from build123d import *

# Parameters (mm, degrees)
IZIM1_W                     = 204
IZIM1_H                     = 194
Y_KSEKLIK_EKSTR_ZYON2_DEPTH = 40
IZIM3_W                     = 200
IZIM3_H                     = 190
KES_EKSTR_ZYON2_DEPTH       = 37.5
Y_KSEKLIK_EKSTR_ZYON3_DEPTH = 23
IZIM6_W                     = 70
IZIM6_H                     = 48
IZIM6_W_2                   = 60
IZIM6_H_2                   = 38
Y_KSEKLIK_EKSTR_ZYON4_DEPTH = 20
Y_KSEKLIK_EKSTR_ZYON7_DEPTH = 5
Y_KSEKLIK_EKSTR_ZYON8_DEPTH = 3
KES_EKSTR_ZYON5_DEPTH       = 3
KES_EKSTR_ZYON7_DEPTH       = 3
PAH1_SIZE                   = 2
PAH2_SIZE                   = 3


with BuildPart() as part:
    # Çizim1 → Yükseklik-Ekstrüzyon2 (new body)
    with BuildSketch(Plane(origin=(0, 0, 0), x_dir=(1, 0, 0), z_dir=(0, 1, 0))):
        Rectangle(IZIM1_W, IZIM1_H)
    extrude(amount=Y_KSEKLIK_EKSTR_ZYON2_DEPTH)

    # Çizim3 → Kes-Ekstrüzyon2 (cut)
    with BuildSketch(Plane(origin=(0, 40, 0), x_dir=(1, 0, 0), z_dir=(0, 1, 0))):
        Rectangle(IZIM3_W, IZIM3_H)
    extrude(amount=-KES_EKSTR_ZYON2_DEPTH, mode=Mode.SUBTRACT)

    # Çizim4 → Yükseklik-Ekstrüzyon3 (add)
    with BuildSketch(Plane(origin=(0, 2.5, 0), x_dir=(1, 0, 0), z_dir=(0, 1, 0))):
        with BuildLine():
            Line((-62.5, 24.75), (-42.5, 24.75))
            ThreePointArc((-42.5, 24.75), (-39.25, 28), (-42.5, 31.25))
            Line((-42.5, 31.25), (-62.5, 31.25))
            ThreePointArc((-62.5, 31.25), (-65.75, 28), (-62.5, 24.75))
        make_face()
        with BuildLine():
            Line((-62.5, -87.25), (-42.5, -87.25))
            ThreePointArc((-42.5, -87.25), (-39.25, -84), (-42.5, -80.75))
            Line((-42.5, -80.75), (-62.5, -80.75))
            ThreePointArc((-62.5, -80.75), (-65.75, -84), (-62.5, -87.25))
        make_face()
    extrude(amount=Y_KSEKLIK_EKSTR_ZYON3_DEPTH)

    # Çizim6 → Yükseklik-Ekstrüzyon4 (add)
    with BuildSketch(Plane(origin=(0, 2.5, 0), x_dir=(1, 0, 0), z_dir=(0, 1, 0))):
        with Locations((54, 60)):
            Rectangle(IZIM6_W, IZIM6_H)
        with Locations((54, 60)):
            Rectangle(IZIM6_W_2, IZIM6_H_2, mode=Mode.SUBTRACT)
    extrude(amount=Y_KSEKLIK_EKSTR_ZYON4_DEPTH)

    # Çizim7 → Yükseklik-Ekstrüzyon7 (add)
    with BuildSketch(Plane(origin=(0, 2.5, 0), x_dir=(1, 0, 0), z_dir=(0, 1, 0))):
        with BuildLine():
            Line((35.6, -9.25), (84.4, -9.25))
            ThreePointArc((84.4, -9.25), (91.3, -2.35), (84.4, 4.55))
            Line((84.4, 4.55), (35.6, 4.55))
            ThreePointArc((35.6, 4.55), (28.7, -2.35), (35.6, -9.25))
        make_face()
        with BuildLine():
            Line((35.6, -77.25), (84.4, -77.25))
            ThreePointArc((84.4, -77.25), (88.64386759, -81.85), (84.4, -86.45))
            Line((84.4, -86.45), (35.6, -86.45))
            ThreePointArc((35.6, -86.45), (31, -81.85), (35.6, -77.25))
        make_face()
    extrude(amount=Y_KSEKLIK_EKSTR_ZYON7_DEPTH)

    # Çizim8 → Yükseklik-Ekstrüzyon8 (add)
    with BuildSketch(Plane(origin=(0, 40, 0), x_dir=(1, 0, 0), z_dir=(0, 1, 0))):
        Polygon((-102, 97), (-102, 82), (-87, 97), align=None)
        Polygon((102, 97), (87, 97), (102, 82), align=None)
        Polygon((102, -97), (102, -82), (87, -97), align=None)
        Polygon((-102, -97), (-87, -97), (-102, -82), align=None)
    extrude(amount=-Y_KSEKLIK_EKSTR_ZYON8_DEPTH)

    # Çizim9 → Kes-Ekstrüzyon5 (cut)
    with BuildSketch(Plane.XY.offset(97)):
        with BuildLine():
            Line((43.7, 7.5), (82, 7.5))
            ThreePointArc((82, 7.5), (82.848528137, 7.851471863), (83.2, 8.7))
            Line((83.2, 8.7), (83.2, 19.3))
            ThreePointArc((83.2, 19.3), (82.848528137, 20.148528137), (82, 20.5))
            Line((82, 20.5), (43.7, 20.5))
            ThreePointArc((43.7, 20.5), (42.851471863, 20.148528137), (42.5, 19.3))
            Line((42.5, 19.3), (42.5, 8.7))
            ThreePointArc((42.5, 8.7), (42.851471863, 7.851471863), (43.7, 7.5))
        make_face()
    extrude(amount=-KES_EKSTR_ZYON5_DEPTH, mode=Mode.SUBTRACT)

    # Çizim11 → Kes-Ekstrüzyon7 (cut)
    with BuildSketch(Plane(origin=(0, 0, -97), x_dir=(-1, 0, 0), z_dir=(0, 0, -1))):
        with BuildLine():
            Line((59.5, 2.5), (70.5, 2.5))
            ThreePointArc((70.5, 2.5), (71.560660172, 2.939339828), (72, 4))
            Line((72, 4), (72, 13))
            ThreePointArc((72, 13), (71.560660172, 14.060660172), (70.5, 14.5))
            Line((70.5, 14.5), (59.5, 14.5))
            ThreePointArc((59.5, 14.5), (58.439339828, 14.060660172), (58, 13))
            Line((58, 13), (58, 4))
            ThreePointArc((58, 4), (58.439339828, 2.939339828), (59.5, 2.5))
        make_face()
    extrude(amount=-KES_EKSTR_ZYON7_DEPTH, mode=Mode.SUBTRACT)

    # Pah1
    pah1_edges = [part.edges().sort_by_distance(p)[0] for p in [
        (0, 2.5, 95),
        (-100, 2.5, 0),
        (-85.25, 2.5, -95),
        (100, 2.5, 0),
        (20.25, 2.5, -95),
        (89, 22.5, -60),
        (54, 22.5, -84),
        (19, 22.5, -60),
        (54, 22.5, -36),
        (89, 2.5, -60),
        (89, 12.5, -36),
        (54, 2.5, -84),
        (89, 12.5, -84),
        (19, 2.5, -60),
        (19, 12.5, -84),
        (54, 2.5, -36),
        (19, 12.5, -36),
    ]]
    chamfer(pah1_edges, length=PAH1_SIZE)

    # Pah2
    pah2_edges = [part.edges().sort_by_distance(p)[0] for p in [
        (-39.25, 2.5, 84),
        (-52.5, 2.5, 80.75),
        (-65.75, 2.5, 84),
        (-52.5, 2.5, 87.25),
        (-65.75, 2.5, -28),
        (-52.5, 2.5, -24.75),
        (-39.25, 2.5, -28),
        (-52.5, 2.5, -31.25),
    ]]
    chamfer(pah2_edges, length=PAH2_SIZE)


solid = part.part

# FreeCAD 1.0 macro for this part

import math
import FreeCAD as App
import Part
import Sketcher
from FreeCAD import Vector
Q = App.Units.Quantity


def edges_at(feature, points):
    """Names of the edges that pass closest to the given points."""
    edges = feature.Shape.Edges
    near = lambda p: min(range(len(edges)), key=lambda i: edges[i].distToShape(Part.Vertex(*p))[0])
    return sorted({f"Edge{near(p) + 1}" for p in points})


def add_polygon(sketch, points):
    """Adds a closed chain of lines whose ends are joined by coincident constraints."""
    first, n = sketch.GeometryCount, len(points)
    for a, b in zip(points, points[1:] + points[:1]):
        sketch.addGeometry(Part.LineSegment(App.Vector(*a, 0), App.Vector(*b, 0)), False)
    for i in range(n):
        sketch.addConstraint(Sketcher.Constraint("Coincident", first + i, 2, first + (i + 1) % n, 1))

doc = App.newDocument("Part")
params = doc.addObject("Spreadsheet::Sheet", "Params")
for row, (alias, value) in enumerate([
    ("sketch1_width", "204 mm"),
    ("sketch1_height", "194 mm"),
    ("pad1_length", "40 mm"),
    ("sketch2_width", "200 mm"),
    ("sketch2_height", "190 mm"),
    ("pocket1_length", "37.5 mm"),
    ("sketch3_width", "20 mm"),
    ("sketch3_radius", "3.25 mm"),
    ("pad2_length", "23 mm"),
    ("sketch4_width", "70 mm"),
    ("sketch4_width2", "60 mm"),
    ("sketch4_height", "48 mm"),
    ("sketch4_height2", "38 mm"),
    ("pad3_length", "20 mm"),
    ("sketch5_radius", "6.9 mm"),
    ("sketch5_radius2", "4.6 mm"),
    ("sketch5_width", "48.8 mm"),
    ("pad4_length", "5 mm"),
    ("sketch6_width", "15 mm"),
    ("pad5_length", "3 mm"),
    ("sketch7_radius", "1.2 mm"),
    ("sketch7_width", "38.3 mm"),
    ("sketch7_height", "10.6 mm"),
    ("pocket2_length", "3 mm"),
    ("sketch8_radius", "1.5 mm"),
    ("sketch8_width", "11 mm"),
    ("sketch8_height", "9 mm"),
    ("pocket3_length", "3 mm"),
    ("chamfer_size", "2 mm"),
    ("chamfer2_size", "3 mm"),
], start=1):
    params.set(f"A{row}", alias)
    params.set(f"B{row}", "=" + value)
    params.setAlias(f"B{row}", alias)

body = doc.addObject("PartDesign::Body", "Body")

sketch1 = body.newObject("Sketcher::SketchObject", "Sketch")
sketch1.AttachmentSupport = (doc.getObject("XZ_Plane"), [""])
sketch1.MapMode = "FlatFace"
add_polygon(sketch1, [(-102, -97), (-102, 97), (102, 97), (102, -97)])
sketch1.addConstraint(Sketcher.Constraint("Vertical", 0))
sketch1.addConstraint(Sketcher.Constraint("Horizontal", 1))
sketch1.addConstraint(Sketcher.Constraint("Vertical", 2))
sketch1.addConstraint(Sketcher.Constraint("Horizontal", 3))
sketch1.addConstraint(Sketcher.Constraint("Symmetric", 0, 2, 2, 2, -1, 1))
sketch1.addConstraint(Sketcher.Constraint("DistanceX", 1, 1, 1, 2, Q("204 mm")))
sketch1.addConstraint(Sketcher.Constraint("DistanceY", 0, 1, 0, 2, Q("194 mm")))
sketch1.setExpression("Constraints[9]", "Params.sketch1_width")
sketch1.setExpression("Constraints[10]", "Params.sketch1_height")
pad1 = body.newObject("PartDesign::Pad", "Pad")
pad1.Profile = sketch1
pad1.setExpression("Length", "Params.pad1_length")
pad1.Reversed = True

sketch2 = body.newObject("Sketcher::SketchObject", "Sketch001")
sketch2.AttachmentSupport = (doc.getObject("XZ_Plane"), [""])
sketch2.MapMode = "FlatFace"
sketch2.AttachmentOffset = App.Placement(Vector(0, 0, -40), App.Rotation())
add_polygon(sketch2, [(-100, -95), (-100, 95), (100, 95), (100, -95)])
sketch2.addConstraint(Sketcher.Constraint("Vertical", 0))
sketch2.addConstraint(Sketcher.Constraint("Horizontal", 1))
sketch2.addConstraint(Sketcher.Constraint("Vertical", 2))
sketch2.addConstraint(Sketcher.Constraint("Horizontal", 3))
sketch2.addConstraint(Sketcher.Constraint("Symmetric", 0, 2, 2, 2, -1, 1))
sketch2.addConstraint(Sketcher.Constraint("DistanceX", 1, 1, 1, 2, Q("200 mm")))
sketch2.addConstraint(Sketcher.Constraint("DistanceY", 0, 1, 0, 2, Q("190 mm")))
sketch2.setExpression("Constraints[9]", "Params.sketch2_width")
sketch2.setExpression("Constraints[10]", "Params.sketch2_height")
pocket1 = body.newObject("PartDesign::Pocket", "Pocket")
pocket1.Profile = sketch2
pocket1.setExpression("Length", "Params.pocket1_length")
pocket1.Reversed = True

sketch3 = body.newObject("Sketcher::SketchObject", "Sketch002")
sketch3.AttachmentSupport = (doc.getObject("XZ_Plane"), [""])
sketch3.MapMode = "FlatFace"
sketch3.AttachmentOffset = App.Placement(Vector(0, 0, -2.5), App.Rotation())
sketch3.addGeometry(Part.LineSegment(Vector(-62.5, -24.8, 0), Vector(-42.5, -24.8, 0)), False)
sketch3.addGeometry(Part.ArcOfCircle(Part.Circle(Vector(-42.5, -28, 0), Vector(0, 0, 1), 3.2), math.radians(-90), math.radians(90)), False)
sketch3.addGeometry(Part.LineSegment(Vector(-42.5, -31.2, 0), Vector(-62.5, -31.2, 0)), False)
sketch3.addGeometry(Part.ArcOfCircle(Part.Circle(Vector(-62.5, -28, 0), Vector(0, 0, 1), 3.2), math.radians(90), math.radians(270)), False)
sketch3.addGeometry(Part.LineSegment(Vector(-62.5, 87.2, 0), Vector(-42.5, 87.2, 0)), False)
sketch3.addGeometry(Part.ArcOfCircle(Part.Circle(Vector(-42.5, 84, 0), Vector(0, 0, 1), 3.2), math.radians(-90), math.radians(90)), False)
sketch3.addGeometry(Part.LineSegment(Vector(-42.5, 80.8, 0), Vector(-62.5, 80.8, 0)), False)
sketch3.addGeometry(Part.ArcOfCircle(Part.Circle(Vector(-62.5, 84, 0), Vector(0, 0, 1), 3.2), math.radians(90), math.radians(270)), False)
sketch3.addConstraint(Sketcher.Constraint("Tangent", 0, 2, 1, 2))
sketch3.addConstraint(Sketcher.Constraint("Tangent", 1, 1, 2, 1))
sketch3.addConstraint(Sketcher.Constraint("Tangent", 2, 2, 3, 2))
sketch3.addConstraint(Sketcher.Constraint("Tangent", 3, 1, 0, 1))
sketch3.addConstraint(Sketcher.Constraint("Tangent", 4, 2, 5, 2))
sketch3.addConstraint(Sketcher.Constraint("Tangent", 5, 1, 6, 1))
sketch3.addConstraint(Sketcher.Constraint("Tangent", 6, 2, 7, 2))
sketch3.addConstraint(Sketcher.Constraint("Tangent", 7, 1, 4, 1))
sketch3.addConstraint(Sketcher.Constraint("Horizontal", 0))
sketch3.addConstraint(Sketcher.Constraint("Horizontal", 2))
sketch3.addConstraint(Sketcher.Constraint("Horizontal", 4))
sketch3.addConstraint(Sketcher.Constraint("Horizontal", 6))
sketch3.addConstraint(Sketcher.Constraint("Equal", 3, 5))
sketch3.addConstraint(Sketcher.Constraint("Vertical", 1, 3, 5, 3))
sketch3.addConstraint(Sketcher.Constraint("Vertical", 3, 3, 7, 3))
sketch3.addConstraint(Sketcher.Constraint("DistanceX", 0, 1, 0, 2, Q("20 mm")))
sketch3.addConstraint(Sketcher.Constraint("Radius", 1, Q("3.25 mm")))
sketch3.addConstraint(Sketcher.Constraint("DistanceY", 1, 3, -1, 1, Q("28 mm")))
sketch3.addConstraint(Sketcher.Constraint("DistanceY", -1, 1, 5, 3, Q("84 mm")))
sketch3.addConstraint(Sketcher.Constraint("DistanceX", 1, 3, -1, 1, Q("42.5 mm")))
sketch3.setExpression("Constraints[15]", "Params.sketch3_width")
sketch3.setExpression("Constraints[16]", "Params.sketch3_radius")
pad2 = body.newObject("PartDesign::Pad", "Pad001")
pad2.Profile = sketch3
pad2.setExpression("Length", "Params.pad2_length")
pad2.Reversed = True

sketch4 = body.newObject("Sketcher::SketchObject", "Sketch003")
sketch4.AttachmentSupport = (doc.getObject("XZ_Plane"), [""])
sketch4.MapMode = "FlatFace"
sketch4.AttachmentOffset = App.Placement(Vector(0, 0, -2.5), App.Rotation())
add_polygon(sketch4, [(19, -84), (19, -36), (89, -36), (89, -84)])
add_polygon(sketch4, [(84, -41), (24, -41), (24, -79), (84, -79)])
sketch4.addConstraint(Sketcher.Constraint("Vertical", 0))
sketch4.addConstraint(Sketcher.Constraint("Horizontal", 1))
sketch4.addConstraint(Sketcher.Constraint("Vertical", 2))
sketch4.addConstraint(Sketcher.Constraint("Horizontal", 3))
sketch4.addConstraint(Sketcher.Constraint("Horizontal", 4))
sketch4.addConstraint(Sketcher.Constraint("Vertical", 5))
sketch4.addConstraint(Sketcher.Constraint("Horizontal", 6))
sketch4.addConstraint(Sketcher.Constraint("Vertical", 7))
sketch4.addConstraint(Sketcher.Constraint("DistanceX", 1, 1, 1, 2, Q("70 mm")))
sketch4.addConstraint(Sketcher.Constraint("DistanceX", 4, 2, 4, 1, Q("60 mm")))
sketch4.addConstraint(Sketcher.Constraint("DistanceY", 0, 1, 0, 2, Q("48 mm")))
sketch4.addConstraint(Sketcher.Constraint("DistanceY", 5, 2, 5, 1, Q("38 mm")))
sketch4.addConstraint(Sketcher.Constraint("DistanceX", -1, 1, 0, 2, Q("19 mm")))
sketch4.addConstraint(Sketcher.Constraint("DistanceY", 0, 2, -1, 1, Q("36 mm")))
sketch4.addConstraint(Sketcher.Constraint("DistanceX", -1, 1, 4, 2, Q("24 mm")))
sketch4.addConstraint(Sketcher.Constraint("DistanceY", 4, 2, -1, 1, Q("41 mm")))
sketch4.setExpression("Constraints[16]", "Params.sketch4_width")
sketch4.setExpression("Constraints[17]", "Params.sketch4_width2")
sketch4.setExpression("Constraints[18]", "Params.sketch4_height")
sketch4.setExpression("Constraints[19]", "Params.sketch4_height2")
pad3 = body.newObject("PartDesign::Pad", "Pad002")
pad3.Profile = sketch4
pad3.setExpression("Length", "Params.pad3_length")
pad3.Reversed = True

sketch5 = body.newObject("Sketcher::SketchObject", "Sketch004")
sketch5.AttachmentSupport = (doc.getObject("XZ_Plane"), [""])
sketch5.MapMode = "FlatFace"
sketch5.AttachmentOffset = App.Placement(Vector(0, 0, -2.5), App.Rotation())
sketch5.addGeometry(Part.LineSegment(Vector(35.6, 9.2, 0), Vector(84.4, 9.2, 0)), False)
sketch5.addGeometry(Part.ArcOfCircle(Part.Circle(Vector(84.4, 2.4, 0), Vector(0, 0, 1), 6.9), math.radians(-90), math.radians(90)), False)
sketch5.addGeometry(Part.LineSegment(Vector(84.4, -4.5, 0), Vector(35.6, -4.5, 0)), False)
sketch5.addGeometry(Part.ArcOfCircle(Part.Circle(Vector(35.6, 2.4, 0), Vector(0, 0, 1), 6.9), math.radians(90), math.radians(270)), False)
sketch5.addGeometry(Part.LineSegment(Vector(84.4, 77.2, 0), Vector(35.6, 77.2, 0)), False)
sketch5.addGeometry(Part.ArcOfCircle(Part.Circle(Vector(35.6, 81.8, 0), Vector(0, 0, 1), 4.6), math.radians(90), math.radians(270)), False)
sketch5.addGeometry(Part.LineSegment(Vector(35.6, 86.5, 0), Vector(84.4, 86.5, 0)), False)
sketch5.addGeometry(Part.ArcOfCircle(Part.Circle(Vector(84, 81.8, 0), Vector(0, 0, 1), 4.6), math.radians(-85), math.radians(85)), False)
sketch5.addConstraint(Sketcher.Constraint("Tangent", 0, 2, 1, 2))
sketch5.addConstraint(Sketcher.Constraint("Tangent", 1, 1, 2, 1))
sketch5.addConstraint(Sketcher.Constraint("Tangent", 2, 2, 3, 2))
sketch5.addConstraint(Sketcher.Constraint("Tangent", 3, 1, 0, 1))
sketch5.addConstraint(Sketcher.Constraint("Tangent", 4, 2, 5, 2))
sketch5.addConstraint(Sketcher.Constraint("Tangent", 5, 1, 6, 1))
sketch5.addConstraint(Sketcher.Constraint("Coincident", 6, 2, 7, 2))
sketch5.addConstraint(Sketcher.Constraint("Coincident", 7, 1, 4, 1))
sketch5.addConstraint(Sketcher.Constraint("Horizontal", 0))
sketch5.addConstraint(Sketcher.Constraint("Horizontal", 2))
sketch5.addConstraint(Sketcher.Constraint("Horizontal", 4))
sketch5.addConstraint(Sketcher.Constraint("Horizontal", 6))
sketch5.addConstraint(Sketcher.Constraint("Horizontal", 5, 3, 7, 3))
sketch5.addConstraint(Sketcher.Constraint("Vertical", 3, 3, 5, 3))
sketch5.addConstraint(Sketcher.Constraint("Vertical", 1, 1, 6, 2))
sketch5.addConstraint(Sketcher.Constraint("Radius", 1, Q("6.9 mm")))
sketch5.addConstraint(Sketcher.Constraint("Radius", 5, Q("4.6 mm")))
sketch5.addConstraint(Sketcher.Constraint("DistanceX", 0, 1, 0, 2, Q("48.8 mm")))
sketch5.addConstraint(Sketcher.Constraint("DistanceY", 3, 1, 4, 2, Q("68 mm")))
sketch5.addConstraint(Sketcher.Constraint("DistanceX", -1, 1, 1, 3, Q("84.4 mm")))
sketch5.addConstraint(Sketcher.Constraint("DistanceY", -1, 1, 1, 3, Q("2.35 mm")))
sketch5.addConstraint(Sketcher.Constraint("Radius", 7, Q("4.614943 mm")))
sketch5.setExpression("Constraints[15]", "Params.sketch5_radius")
sketch5.setExpression("Constraints[16]", "Params.sketch5_radius2")
sketch5.setExpression("Constraints[17]", "Params.sketch5_width")
pad4 = body.newObject("PartDesign::Pad", "Pad003")
pad4.Profile = sketch5
pad4.setExpression("Length", "Params.pad4_length")
pad4.Reversed = True

sketch6 = body.newObject("Sketcher::SketchObject", "Sketch005")
sketch6.AttachmentSupport = (doc.getObject("XZ_Plane"), [""])
sketch6.MapMode = "FlatFace"
sketch6.AttachmentOffset = App.Placement(Vector(0, 0, -40), App.Rotation())
add_polygon(sketch6, [(-102, -97), (-102, -82), (-87, -97)])
add_polygon(sketch6, [(102, -97), (87, -97), (102, -82)])
add_polygon(sketch6, [(102, 97), (102, 82), (87, 97)])
add_polygon(sketch6, [(-102, 97), (-87, 97), (-102, 82)])
sketch6.addConstraint(Sketcher.Constraint("Vertical", 0))
sketch6.addConstraint(Sketcher.Constraint("Horizontal", 2))
sketch6.addConstraint(Sketcher.Constraint("Horizontal", 3))
sketch6.addConstraint(Sketcher.Constraint("Vertical", 5))
sketch6.addConstraint(Sketcher.Constraint("Vertical", 6))
sketch6.addConstraint(Sketcher.Constraint("Horizontal", 8))
sketch6.addConstraint(Sketcher.Constraint("Horizontal", 9))
sketch6.addConstraint(Sketcher.Constraint("Vertical", 11))
sketch6.addConstraint(Sketcher.Constraint("Symmetric", 0, 2, 6, 2, -1, 1))
sketch6.addConstraint(Sketcher.Constraint("Symmetric", 1, 2, 7, 2, -1, 1))
sketch6.addConstraint(Sketcher.Constraint("Symmetric", 3, 2, 9, 2, -1, 1))
sketch6.addConstraint(Sketcher.Constraint("Symmetric", 4, 2, 10, 2, -1, 1))
sketch6.addConstraint(Sketcher.Constraint("Symmetric", 1, 2, 3, 2, -2))
sketch6.addConstraint(Sketcher.Constraint("Symmetric", 0, 2, 4, 2, -2))
sketch6.addConstraint(Sketcher.Constraint("Perpendicular", 1, 4))
sketch6.addConstraint(Sketcher.Constraint("DistanceX", 2, 2, 2, 1, Q("15 mm")))
sketch6.addConstraint(Sketcher.Constraint("DistanceX", 0, 2, -1, 1, Q("102 mm")))
sketch6.addConstraint(Sketcher.Constraint("DistanceY", 0, 2, -1, 1, Q("82 mm")))
sketch6.setExpression("Constraints[27]", "Params.sketch6_width")
pad5 = body.newObject("PartDesign::Pad", "Pad004")
pad5.Profile = sketch6
pad5.setExpression("Length", "Params.pad5_length")

sketch7 = body.newObject("Sketcher::SketchObject", "Sketch006")
sketch7.AttachmentSupport = (doc.getObject("XY_Plane"), [""])
sketch7.MapMode = "FlatFace"
sketch7.AttachmentOffset = App.Placement(Vector(0, 0, 97), App.Rotation())
sketch7.addGeometry(Part.LineSegment(Vector(43.7, 7.5, 0), Vector(82, 7.5, 0)), False)
sketch7.addGeometry(Part.ArcOfCircle(Part.Circle(Vector(82, 8.7, 0), Vector(0, 0, 1), 1.2), math.radians(-90), math.radians(0)), False)
sketch7.addGeometry(Part.LineSegment(Vector(83.2, 8.7, 0), Vector(83.2, 19.3, 0)), False)
sketch7.addGeometry(Part.ArcOfCircle(Part.Circle(Vector(82, 19.3, 0), Vector(0, 0, 1), 1.2), math.radians(0), math.radians(90)), False)
sketch7.addGeometry(Part.LineSegment(Vector(82, 20.5, 0), Vector(43.7, 20.5, 0)), False)
sketch7.addGeometry(Part.ArcOfCircle(Part.Circle(Vector(43.7, 19.3, 0), Vector(0, 0, 1), 1.2), math.radians(90), math.radians(180)), False)
sketch7.addGeometry(Part.LineSegment(Vector(42.5, 19.3, 0), Vector(42.5, 8.7, 0)), False)
sketch7.addGeometry(Part.ArcOfCircle(Part.Circle(Vector(43.7, 8.7, 0), Vector(0, 0, 1), 1.2), math.radians(-180), math.radians(-90)), False)
sketch7.addConstraint(Sketcher.Constraint("Tangent", 0, 2, 1, 1))
sketch7.addConstraint(Sketcher.Constraint("Tangent", 1, 2, 2, 1))
sketch7.addConstraint(Sketcher.Constraint("Tangent", 2, 2, 3, 1))
sketch7.addConstraint(Sketcher.Constraint("Tangent", 3, 2, 4, 1))
sketch7.addConstraint(Sketcher.Constraint("Tangent", 4, 2, 5, 1))
sketch7.addConstraint(Sketcher.Constraint("Tangent", 5, 2, 6, 1))
sketch7.addConstraint(Sketcher.Constraint("Tangent", 6, 2, 7, 1))
sketch7.addConstraint(Sketcher.Constraint("Tangent", 7, 2, 0, 1))
sketch7.addConstraint(Sketcher.Constraint("Horizontal", 0))
sketch7.addConstraint(Sketcher.Constraint("Vertical", 2))
sketch7.addConstraint(Sketcher.Constraint("Horizontal", 4))
sketch7.addConstraint(Sketcher.Constraint("Vertical", 6))
sketch7.addConstraint(Sketcher.Constraint("Equal", 1, 3))
sketch7.addConstraint(Sketcher.Constraint("Equal", 3, 5))
sketch7.addConstraint(Sketcher.Constraint("Equal", 5, 7))
sketch7.addConstraint(Sketcher.Constraint("Radius", 1, Q("1.2 mm")))
sketch7.addConstraint(Sketcher.Constraint("DistanceX", 0, 1, 0, 2, Q("38.3 mm")))
sketch7.addConstraint(Sketcher.Constraint("DistanceY", 2, 1, 2, 2, Q("10.6 mm")))
sketch7.addConstraint(Sketcher.Constraint("DistanceX", -1, 1, 1, 3, Q("82 mm")))
sketch7.addConstraint(Sketcher.Constraint("DistanceY", -1, 1, 1, 3, Q("8.7 mm")))
sketch7.setExpression("Constraints[15]", "Params.sketch7_radius")
sketch7.setExpression("Constraints[16]", "Params.sketch7_width")
sketch7.setExpression("Constraints[17]", "Params.sketch7_height")
pocket2 = body.newObject("PartDesign::Pocket", "Pocket001")
pocket2.Profile = sketch7
pocket2.setExpression("Length", "Params.pocket2_length")

sketch8 = body.newObject("Sketcher::SketchObject", "Sketch007")
sketch8.AttachmentSupport = (doc.getObject("XY_Plane"), [""])
sketch8.MapMode = "FlatFace"
sketch8.AttachmentOffset = App.Placement(Vector(0, 0, -97), App.Rotation())
sketch8.addGeometry(Part.LineSegment(Vector(-59.5, 2.5, 0), Vector(-70.5, 2.5, 0)), False)
sketch8.addGeometry(Part.ArcOfCircle(Part.Circle(Vector(-70.5, 4, 0), Vector(0, 0, 1), 1.5), math.radians(180), math.radians(270)), False)
sketch8.addGeometry(Part.LineSegment(Vector(-72, 4, 0), Vector(-72, 13, 0)), False)
sketch8.addGeometry(Part.ArcOfCircle(Part.Circle(Vector(-70.5, 13, 0), Vector(0, 0, 1), 1.5), math.radians(90), math.radians(180)), False)
sketch8.addGeometry(Part.LineSegment(Vector(-70.5, 14.5, 0), Vector(-59.5, 14.5, 0)), False)
sketch8.addGeometry(Part.ArcOfCircle(Part.Circle(Vector(-59.5, 13, 0), Vector(0, 0, 1), 1.5), math.radians(0), math.radians(90)), False)
sketch8.addGeometry(Part.LineSegment(Vector(-58, 13, 0), Vector(-58, 4, 0)), False)
sketch8.addGeometry(Part.ArcOfCircle(Part.Circle(Vector(-59.5, 4, 0), Vector(0, 0, 1), 1.5), math.radians(-90), math.radians(0)), False)
sketch8.addConstraint(Sketcher.Constraint("Tangent", 0, 2, 1, 2))
sketch8.addConstraint(Sketcher.Constraint("Tangent", 1, 1, 2, 1))
sketch8.addConstraint(Sketcher.Constraint("Tangent", 2, 2, 3, 2))
sketch8.addConstraint(Sketcher.Constraint("Tangent", 3, 1, 4, 1))
sketch8.addConstraint(Sketcher.Constraint("Tangent", 4, 2, 5, 2))
sketch8.addConstraint(Sketcher.Constraint("Tangent", 5, 1, 6, 1))
sketch8.addConstraint(Sketcher.Constraint("Tangent", 6, 2, 7, 2))
sketch8.addConstraint(Sketcher.Constraint("Tangent", 7, 1, 0, 1))
sketch8.addConstraint(Sketcher.Constraint("Horizontal", 0))
sketch8.addConstraint(Sketcher.Constraint("Vertical", 2))
sketch8.addConstraint(Sketcher.Constraint("Horizontal", 4))
sketch8.addConstraint(Sketcher.Constraint("Vertical", 6))
sketch8.addConstraint(Sketcher.Constraint("Equal", 1, 3))
sketch8.addConstraint(Sketcher.Constraint("Equal", 3, 5))
sketch8.addConstraint(Sketcher.Constraint("Equal", 5, 7))
sketch8.addConstraint(Sketcher.Constraint("Radius", 1, Q("1.5 mm")))
sketch8.addConstraint(Sketcher.Constraint("DistanceX", 0, 2, 0, 1, Q("11 mm")))
sketch8.addConstraint(Sketcher.Constraint("DistanceY", 2, 1, 2, 2, Q("9 mm")))
sketch8.addConstraint(Sketcher.Constraint("DistanceY", -1, 1, 1, 3, Q("4 mm")))
sketch8.addConstraint(Sketcher.Constraint("DistanceX", 1, 1, -1, 1, Q("72 mm")))
sketch8.setExpression("Constraints[15]", "Params.sketch8_radius")
sketch8.setExpression("Constraints[16]", "Params.sketch8_width")
sketch8.setExpression("Constraints[17]", "Params.sketch8_height")
pocket3 = body.newObject("PartDesign::Pocket", "Pocket002")
pocket3.Profile = sketch8
pocket3.setExpression("Length", "Params.pocket3_length")
pocket3.Reversed = True
doc.recompute()

chamfer = body.newObject("PartDesign::Chamfer", "Chamfer")
chamfer.Base = (pocket3, edges_at(pocket3, [
    (0, 2.5, 95),
    (-100, 2.5, 0),
    (-85.25, 2.5, -95),
    (100, 2.5, 0),
    (20.25, 2.5, -95),
    (89, 22.5, -60),
    (54, 22.5, -84),
    (19, 22.5, -60),
    (54, 22.5, -36),
    (89, 2.5, -60),
    (89, 12.5, -36),
    (54, 2.5, -84),
    (89, 12.5, -84),
    (19, 2.5, -60),
    (19, 12.5, -84),
    (54, 2.5, -36),
    (19, 12.5, -36),
]))
chamfer.setExpression("Size", "Params.chamfer_size")
doc.recompute()

chamfer2 = body.newObject("PartDesign::Chamfer", "Chamfer001")
chamfer2.Base = (chamfer, edges_at(chamfer, [
    (-39.25, 2.5, 84),
    (-52.5, 2.5, 80.75),
    (-65.75, 2.5, 84),
    (-52.5, 2.5, 87.25),
    (-65.75, 2.5, -28),
    (-52.5, 2.5, -24.75),
    (-39.25, 2.5, -28),
    (-52.5, 2.5, -31.25),
]))
chamfer2.setExpression("Size", "Params.chamfer2_size")

doc.recompute()
